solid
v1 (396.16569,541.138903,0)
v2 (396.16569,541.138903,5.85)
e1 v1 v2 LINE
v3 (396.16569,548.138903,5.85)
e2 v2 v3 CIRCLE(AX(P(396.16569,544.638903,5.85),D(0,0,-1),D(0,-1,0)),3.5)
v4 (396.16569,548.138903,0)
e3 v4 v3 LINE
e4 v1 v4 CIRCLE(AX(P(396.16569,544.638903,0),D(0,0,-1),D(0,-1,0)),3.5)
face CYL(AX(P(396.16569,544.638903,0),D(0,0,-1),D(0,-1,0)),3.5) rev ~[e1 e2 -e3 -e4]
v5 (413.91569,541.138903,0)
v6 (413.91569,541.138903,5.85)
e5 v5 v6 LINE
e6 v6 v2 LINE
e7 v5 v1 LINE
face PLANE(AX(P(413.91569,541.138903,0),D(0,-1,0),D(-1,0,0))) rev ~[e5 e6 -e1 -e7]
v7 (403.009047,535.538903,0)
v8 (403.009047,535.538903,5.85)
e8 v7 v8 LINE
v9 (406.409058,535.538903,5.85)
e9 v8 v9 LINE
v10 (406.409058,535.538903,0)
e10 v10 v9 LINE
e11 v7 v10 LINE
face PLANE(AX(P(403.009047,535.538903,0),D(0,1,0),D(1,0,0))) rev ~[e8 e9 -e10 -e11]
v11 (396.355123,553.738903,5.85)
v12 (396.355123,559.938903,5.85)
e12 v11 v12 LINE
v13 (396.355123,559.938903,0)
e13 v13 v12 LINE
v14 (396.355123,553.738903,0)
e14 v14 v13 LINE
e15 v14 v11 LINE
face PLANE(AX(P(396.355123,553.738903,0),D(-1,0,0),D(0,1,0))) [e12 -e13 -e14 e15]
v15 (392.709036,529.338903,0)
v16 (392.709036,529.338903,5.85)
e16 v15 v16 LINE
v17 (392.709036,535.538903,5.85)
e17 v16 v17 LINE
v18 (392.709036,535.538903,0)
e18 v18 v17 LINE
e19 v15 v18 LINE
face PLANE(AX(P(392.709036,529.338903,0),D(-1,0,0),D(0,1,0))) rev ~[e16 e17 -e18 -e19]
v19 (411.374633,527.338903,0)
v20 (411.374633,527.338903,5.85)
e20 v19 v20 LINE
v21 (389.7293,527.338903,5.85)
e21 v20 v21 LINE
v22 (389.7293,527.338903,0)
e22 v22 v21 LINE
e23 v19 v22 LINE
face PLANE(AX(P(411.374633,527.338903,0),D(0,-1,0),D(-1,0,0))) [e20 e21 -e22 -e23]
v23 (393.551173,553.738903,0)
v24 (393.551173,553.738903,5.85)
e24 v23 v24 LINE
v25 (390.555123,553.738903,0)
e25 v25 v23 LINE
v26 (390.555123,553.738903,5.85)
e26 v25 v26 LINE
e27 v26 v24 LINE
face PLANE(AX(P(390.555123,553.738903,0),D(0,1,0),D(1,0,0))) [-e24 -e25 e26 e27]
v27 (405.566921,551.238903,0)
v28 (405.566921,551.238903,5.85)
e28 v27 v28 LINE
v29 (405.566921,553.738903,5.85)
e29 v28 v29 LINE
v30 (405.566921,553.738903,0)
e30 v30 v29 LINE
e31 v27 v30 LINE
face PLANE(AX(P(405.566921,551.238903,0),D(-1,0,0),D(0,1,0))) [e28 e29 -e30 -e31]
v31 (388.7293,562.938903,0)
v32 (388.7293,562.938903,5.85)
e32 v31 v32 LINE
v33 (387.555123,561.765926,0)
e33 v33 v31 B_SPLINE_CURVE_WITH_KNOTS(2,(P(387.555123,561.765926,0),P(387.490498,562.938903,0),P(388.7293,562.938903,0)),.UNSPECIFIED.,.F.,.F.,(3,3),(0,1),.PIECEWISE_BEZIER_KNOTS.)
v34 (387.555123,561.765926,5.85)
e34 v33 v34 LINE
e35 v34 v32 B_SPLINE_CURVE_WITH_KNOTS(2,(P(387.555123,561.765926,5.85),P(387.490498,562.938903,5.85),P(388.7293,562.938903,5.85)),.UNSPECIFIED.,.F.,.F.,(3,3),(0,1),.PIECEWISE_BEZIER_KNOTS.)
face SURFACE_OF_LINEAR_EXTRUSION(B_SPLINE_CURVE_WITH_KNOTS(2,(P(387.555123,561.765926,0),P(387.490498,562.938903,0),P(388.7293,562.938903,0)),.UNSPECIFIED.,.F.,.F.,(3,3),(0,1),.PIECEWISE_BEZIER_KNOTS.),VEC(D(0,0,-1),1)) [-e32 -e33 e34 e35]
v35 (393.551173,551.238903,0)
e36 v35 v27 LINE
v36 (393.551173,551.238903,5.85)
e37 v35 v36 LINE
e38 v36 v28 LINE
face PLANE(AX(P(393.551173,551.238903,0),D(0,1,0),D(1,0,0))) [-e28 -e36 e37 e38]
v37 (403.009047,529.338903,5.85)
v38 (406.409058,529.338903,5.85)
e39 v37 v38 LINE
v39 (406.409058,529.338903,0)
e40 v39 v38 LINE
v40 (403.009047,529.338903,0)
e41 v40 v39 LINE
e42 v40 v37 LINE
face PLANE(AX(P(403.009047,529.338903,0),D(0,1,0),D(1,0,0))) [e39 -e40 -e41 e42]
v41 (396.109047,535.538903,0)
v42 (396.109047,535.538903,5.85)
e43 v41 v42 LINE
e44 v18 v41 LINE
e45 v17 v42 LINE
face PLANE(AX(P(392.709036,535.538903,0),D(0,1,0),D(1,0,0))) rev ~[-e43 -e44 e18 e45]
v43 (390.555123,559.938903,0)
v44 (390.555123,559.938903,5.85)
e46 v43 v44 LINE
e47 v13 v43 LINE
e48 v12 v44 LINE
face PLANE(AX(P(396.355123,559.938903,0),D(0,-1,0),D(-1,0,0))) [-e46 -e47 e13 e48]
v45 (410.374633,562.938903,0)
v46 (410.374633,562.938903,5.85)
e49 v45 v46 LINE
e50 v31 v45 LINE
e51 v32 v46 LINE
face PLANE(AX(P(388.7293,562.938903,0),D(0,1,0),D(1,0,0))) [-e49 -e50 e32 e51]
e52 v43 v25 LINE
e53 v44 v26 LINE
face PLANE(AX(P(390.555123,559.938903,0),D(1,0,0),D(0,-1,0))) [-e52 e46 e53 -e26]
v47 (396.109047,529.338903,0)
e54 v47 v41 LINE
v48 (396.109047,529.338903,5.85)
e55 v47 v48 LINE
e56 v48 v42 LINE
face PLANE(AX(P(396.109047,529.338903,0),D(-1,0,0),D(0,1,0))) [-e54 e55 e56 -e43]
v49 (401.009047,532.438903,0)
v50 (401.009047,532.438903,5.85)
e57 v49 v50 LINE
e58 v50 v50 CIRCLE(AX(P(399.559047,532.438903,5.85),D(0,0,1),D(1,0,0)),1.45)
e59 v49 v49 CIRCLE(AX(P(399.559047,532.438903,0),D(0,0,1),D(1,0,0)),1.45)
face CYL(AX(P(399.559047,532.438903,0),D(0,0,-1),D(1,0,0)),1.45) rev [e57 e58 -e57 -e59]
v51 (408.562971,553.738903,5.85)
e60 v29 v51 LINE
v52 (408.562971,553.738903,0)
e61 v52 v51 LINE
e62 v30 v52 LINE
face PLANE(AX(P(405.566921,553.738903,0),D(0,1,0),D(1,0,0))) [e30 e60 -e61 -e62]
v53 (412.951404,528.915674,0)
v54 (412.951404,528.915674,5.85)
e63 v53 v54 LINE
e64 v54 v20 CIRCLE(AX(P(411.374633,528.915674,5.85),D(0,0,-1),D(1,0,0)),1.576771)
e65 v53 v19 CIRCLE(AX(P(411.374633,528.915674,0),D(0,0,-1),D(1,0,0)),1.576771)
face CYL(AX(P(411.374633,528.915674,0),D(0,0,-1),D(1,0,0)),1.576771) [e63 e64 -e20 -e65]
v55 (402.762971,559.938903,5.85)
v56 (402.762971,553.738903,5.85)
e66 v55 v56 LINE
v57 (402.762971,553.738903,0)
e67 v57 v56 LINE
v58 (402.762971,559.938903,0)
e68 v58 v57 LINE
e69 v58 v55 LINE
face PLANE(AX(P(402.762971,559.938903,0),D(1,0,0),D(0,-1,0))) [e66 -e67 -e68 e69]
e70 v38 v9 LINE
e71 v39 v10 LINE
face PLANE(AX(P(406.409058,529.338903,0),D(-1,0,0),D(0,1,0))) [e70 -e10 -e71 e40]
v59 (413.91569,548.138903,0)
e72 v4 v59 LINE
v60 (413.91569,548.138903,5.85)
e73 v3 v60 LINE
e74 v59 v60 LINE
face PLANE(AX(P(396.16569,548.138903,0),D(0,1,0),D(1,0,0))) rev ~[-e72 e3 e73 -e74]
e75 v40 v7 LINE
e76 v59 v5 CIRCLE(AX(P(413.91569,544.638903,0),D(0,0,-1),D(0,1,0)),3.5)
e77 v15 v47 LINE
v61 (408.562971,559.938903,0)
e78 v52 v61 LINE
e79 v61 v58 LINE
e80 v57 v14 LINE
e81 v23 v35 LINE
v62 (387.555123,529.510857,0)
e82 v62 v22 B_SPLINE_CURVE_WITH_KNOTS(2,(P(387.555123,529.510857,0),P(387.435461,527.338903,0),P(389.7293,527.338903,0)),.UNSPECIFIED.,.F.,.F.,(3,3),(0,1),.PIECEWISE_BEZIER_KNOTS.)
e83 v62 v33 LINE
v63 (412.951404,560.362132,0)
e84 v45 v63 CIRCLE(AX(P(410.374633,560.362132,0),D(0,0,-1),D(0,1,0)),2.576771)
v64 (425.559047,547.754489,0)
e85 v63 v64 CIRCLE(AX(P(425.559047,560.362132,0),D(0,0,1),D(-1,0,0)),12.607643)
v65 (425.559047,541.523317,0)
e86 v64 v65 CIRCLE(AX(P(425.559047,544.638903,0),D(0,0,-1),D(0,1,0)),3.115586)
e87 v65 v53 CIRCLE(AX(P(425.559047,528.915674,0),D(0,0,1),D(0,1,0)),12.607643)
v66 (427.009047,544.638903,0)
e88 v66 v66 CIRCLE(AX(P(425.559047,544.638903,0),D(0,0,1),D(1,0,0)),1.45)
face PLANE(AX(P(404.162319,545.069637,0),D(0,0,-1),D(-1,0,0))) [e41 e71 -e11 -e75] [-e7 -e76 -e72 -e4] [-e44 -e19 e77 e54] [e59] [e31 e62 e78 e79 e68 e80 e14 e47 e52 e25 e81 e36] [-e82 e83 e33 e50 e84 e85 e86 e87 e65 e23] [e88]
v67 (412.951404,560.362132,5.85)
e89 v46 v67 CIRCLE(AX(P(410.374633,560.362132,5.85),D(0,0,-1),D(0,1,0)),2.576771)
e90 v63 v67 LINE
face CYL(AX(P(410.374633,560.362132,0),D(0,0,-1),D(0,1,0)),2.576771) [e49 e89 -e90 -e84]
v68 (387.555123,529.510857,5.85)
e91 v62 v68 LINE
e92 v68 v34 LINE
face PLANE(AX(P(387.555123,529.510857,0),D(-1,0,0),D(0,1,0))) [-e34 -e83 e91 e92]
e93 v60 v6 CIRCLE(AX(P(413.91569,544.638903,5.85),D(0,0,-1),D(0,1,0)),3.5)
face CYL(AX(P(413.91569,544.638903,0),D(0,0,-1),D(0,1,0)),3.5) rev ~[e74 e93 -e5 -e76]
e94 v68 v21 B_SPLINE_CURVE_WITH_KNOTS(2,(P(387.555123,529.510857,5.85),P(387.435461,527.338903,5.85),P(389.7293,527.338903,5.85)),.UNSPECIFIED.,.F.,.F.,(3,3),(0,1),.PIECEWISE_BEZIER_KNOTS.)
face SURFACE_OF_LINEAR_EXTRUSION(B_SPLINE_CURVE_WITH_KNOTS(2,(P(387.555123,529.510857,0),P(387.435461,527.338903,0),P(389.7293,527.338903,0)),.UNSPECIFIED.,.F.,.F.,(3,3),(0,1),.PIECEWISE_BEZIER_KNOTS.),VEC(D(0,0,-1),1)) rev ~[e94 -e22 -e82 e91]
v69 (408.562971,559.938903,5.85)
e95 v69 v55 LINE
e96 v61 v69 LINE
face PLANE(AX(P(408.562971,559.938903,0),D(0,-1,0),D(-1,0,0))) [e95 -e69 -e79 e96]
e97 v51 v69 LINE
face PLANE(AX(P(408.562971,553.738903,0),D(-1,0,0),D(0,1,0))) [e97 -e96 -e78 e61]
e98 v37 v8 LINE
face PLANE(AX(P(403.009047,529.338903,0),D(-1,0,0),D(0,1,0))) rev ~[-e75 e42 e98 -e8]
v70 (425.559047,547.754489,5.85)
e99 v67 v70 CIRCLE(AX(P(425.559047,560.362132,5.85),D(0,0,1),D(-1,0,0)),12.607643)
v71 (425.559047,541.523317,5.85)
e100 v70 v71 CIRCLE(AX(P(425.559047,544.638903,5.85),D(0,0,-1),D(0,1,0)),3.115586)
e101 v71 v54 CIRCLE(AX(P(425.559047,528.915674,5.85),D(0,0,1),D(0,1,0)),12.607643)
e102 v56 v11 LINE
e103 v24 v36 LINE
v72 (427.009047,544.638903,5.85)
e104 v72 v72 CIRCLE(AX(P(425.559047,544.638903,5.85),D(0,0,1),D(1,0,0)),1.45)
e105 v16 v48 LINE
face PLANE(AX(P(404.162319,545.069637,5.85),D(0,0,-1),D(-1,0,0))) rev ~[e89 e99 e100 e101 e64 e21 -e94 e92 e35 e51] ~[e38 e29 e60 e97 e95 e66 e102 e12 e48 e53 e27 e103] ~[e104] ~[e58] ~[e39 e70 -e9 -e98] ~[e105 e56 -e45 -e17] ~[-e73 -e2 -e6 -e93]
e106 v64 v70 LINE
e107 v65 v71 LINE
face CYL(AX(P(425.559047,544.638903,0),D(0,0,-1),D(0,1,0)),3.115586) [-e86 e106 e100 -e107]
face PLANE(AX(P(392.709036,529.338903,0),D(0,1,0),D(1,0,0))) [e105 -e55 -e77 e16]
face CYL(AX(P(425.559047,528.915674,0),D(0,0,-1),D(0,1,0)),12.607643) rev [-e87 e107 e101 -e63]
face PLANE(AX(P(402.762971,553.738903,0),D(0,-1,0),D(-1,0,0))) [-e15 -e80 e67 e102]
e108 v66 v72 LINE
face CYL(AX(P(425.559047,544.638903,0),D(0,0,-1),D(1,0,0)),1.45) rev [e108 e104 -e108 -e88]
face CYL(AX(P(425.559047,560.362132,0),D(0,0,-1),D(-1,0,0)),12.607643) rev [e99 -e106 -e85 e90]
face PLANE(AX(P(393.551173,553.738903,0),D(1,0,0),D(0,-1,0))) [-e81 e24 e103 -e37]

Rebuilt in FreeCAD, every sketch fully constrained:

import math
import FreeCAD as App
import Part
import Sketcher

V = App.Vector


def add_polygon(sketch, points):
    """Adds a closed chain of lines whose ends are joined by coincident constraints."""
    first, n = sketch.GeometryCount, len(points)
    for a, b in zip(points, points[1:] + points[:1]):
        sketch.addGeometry(Part.LineSegment(App.Vector(*a, 0), App.Vector(*b, 0)), False)
    for i in range(n):
        sketch.addConstraint(Sketcher.Constraint("Coincident", first + i, 2, first + (i + 1) % n, 1))

doc = App.newDocument("Part")
body = doc.addObject("PartDesign::Body", "Body")

# Sketch on XY plane
sketch1 = doc.addObject("Sketcher::SketchObject", "Sketch")
body.addObject(sketch1)
sketch1.AttachmentSupport = (doc.XY_Plane, [""])
sketch1.MapMode = "FlatFace"
sketch1.addGeometry(Part.LineSegment(V(410.374633, 562.938903, 0), V(388.7293, 562.938903, 0)), False)  # 0
sketch1.addGeometry(Part.BSplineCurve([V(387.555123, 561.765926, 0), V(387.490498, 562.938903, 0), V(388.7293, 562.938903, 0)], [3, 3], [0, 1], False, 2, [1, 1, 1], False), False)  # 1
sketch1.addGeometry(Part.LineSegment(V(387.555123, 561.765926, 0), V(387.555123, 529.510857, 0)), False)  # 2
sketch1.addGeometry(Part.BSplineCurve([V(387.555123, 529.510857, 0), V(387.435461, 527.338903, 0), V(389.7293, 527.338903, 0)], [3, 3], [0, 1], False, 2, [1, 1, 1], False), False)  # 3
sketch1.addGeometry(Part.LineSegment(V(389.7293, 527.338903, 0), V(411.374633, 527.338903, 0)), False)  # 4
sketch1.addGeometry(Part.ArcOfCircle(Part.Circle(V(411.374633, 528.915674, 0), V(0, 0, 1), 1.576771), math.radians(-90), math.radians(0)), False)  # 5
sketch1.addGeometry(Part.ArcOfCircle(Part.Circle(V(425.559047, 528.915674, 0), V(0, 0, 1), 12.607643), math.radians(90), math.radians(180)), False)  # 6
sketch1.addGeometry(Part.ArcOfCircle(Part.Circle(V(425.559047, 544.638903, 0), V(0, 0, 1), 3.115586), math.radians(-90), math.radians(90)), False)  # 7
sketch1.addGeometry(Part.ArcOfCircle(Part.Circle(V(425.559047, 560.362132, 0), V(0, 0, 1), 12.607643), math.radians(-180), math.radians(-90)), False)  # 8
sketch1.addGeometry(Part.ArcOfCircle(Part.Circle(V(410.374633, 560.362132, 0), V(0, 0, 1), 2.576771), math.radians(0), math.radians(90)), False)  # 9
add_polygon(sketch1, [(403.009047, 529.338903), (403.009047, 535.538903), (406.409058, 535.538903), (406.409058, 529.338903)])  # lines 10-13
sketch1.addGeometry(Part.Circle(V(399.559047, 532.438903, 0), V(0, 0, 1), 1.45), False)  # 14
add_polygon(sketch1, [(392.709036, 529.338903), (392.709036, 535.538903), (396.109047, 535.538903), (396.109047, 529.338903)])  # lines 15-18
sketch1.addGeometry(Part.Circle(V(425.559047, 544.638903, 0), V(0, 0, 1), 1.45), False)  # 19
sketch1.addGeometry(Part.LineSegment(V(396.16569, 548.138903, 0), V(413.91569, 548.138903, 0)), False)  # 20
sketch1.addGeometry(Part.ArcOfCircle(Part.Circle(V(413.91569, 544.638903, 0), V(0, 0, 1), 3.5), math.radians(-90), math.radians(90)), False)  # 21
sketch1.addGeometry(Part.LineSegment(V(413.91569, 541.138903, 0), V(396.16569, 541.138903, 0)), False)  # 22
sketch1.addGeometry(Part.ArcOfCircle(Part.Circle(V(396.16569, 544.638903, 0), V(0, 0, 1), 3.5), math.radians(90), math.radians(270)), False)  # 23
add_polygon(sketch1, [(405.566921, 551.238903), (393.551173, 551.238903), (393.551173, 553.738903), (390.555123, 553.738903), (390.555123, 559.938903), (396.355123, 559.938903), (396.355123, 553.738903), (402.762971, 553.738903), (402.762971, 559.938903), (408.562971, 559.938903), (408.562971, 553.738903), (405.566921, 553.738903)])  # lines 24-35
sketch1.addConstraint(Sketcher.Constraint("Block", 1))
sketch1.addConstraint(Sketcher.Constraint("Block", 3))
sketch1.addConstraint(Sketcher.Constraint("Coincident", 0, 2, 1, 2))
sketch1.addConstraint(Sketcher.Constraint("Coincident", 1, 1, 2, 1))
sketch1.addConstraint(Sketcher.Constraint("Coincident", 2, 2, 3, 1))
sketch1.addConstraint(Sketcher.Constraint("Coincident", 3, 2, 4, 1))
sketch1.addConstraint(Sketcher.Constraint("Tangent", 4, 2, 5, 1))
sketch1.addConstraint(Sketcher.Constraint("Tangent", 5, 2, 6, 2))
sketch1.addConstraint(Sketcher.Constraint("Tangent", 6, 1, 7, 1))
sketch1.addConstraint(Sketcher.Constraint("Tangent", 7, 2, 8, 2))
sketch1.addConstraint(Sketcher.Constraint("Tangent", 8, 1, 9, 1))
sketch1.addConstraint(Sketcher.Constraint("Tangent", 9, 2, 0, 1))
sketch1.addConstraint(Sketcher.Constraint("Tangent", 20, 2, 21, 2))
sketch1.addConstraint(Sketcher.Constraint("Tangent", 21, 1, 22, 1))
sketch1.addConstraint(Sketcher.Constraint("Tangent", 22, 2, 23, 2))
sketch1.addConstraint(Sketcher.Constraint("Tangent", 23, 1, 20, 1))
sketch1.addConstraint(Sketcher.Constraint("Horizontal", 0))
sketch1.addConstraint(Sketcher.Constraint("Horizontal", 4))
sketch1.addConstraint(Sketcher.Constraint("Vertical", 10))
sketch1.addConstraint(Sketcher.Constraint("Horizontal", 11))
sketch1.addConstraint(Sketcher.Constraint("Vertical", 12))
sketch1.addConstraint(Sketcher.Constraint("Horizontal", 13))
sketch1.addConstraint(Sketcher.Constraint("Vertical", 15))
sketch1.addConstraint(Sketcher.Constraint("Horizontal", 16))
sketch1.addConstraint(Sketcher.Constraint("Vertical", 17))
sketch1.addConstraint(Sketcher.Constraint("Horizontal", 18))
sketch1.addConstraint(Sketcher.Constraint("Horizontal", 20))
sketch1.addConstraint(Sketcher.Constraint("Horizontal", 22))
sketch1.addConstraint(Sketcher.Constraint("Horizontal", 24))
sketch1.addConstraint(Sketcher.Constraint("Vertical", 25))
sketch1.addConstraint(Sketcher.Constraint("Horizontal", 26))
sketch1.addConstraint(Sketcher.Constraint("Vertical", 27))
sketch1.addConstraint(Sketcher.Constraint("Horizontal", 28))
sketch1.addConstraint(Sketcher.Constraint("Vertical", 29))
sketch1.addConstraint(Sketcher.Constraint("Horizontal", 30))
sketch1.addConstraint(Sketcher.Constraint("Vertical", 31))
sketch1.addConstraint(Sketcher.Constraint("Horizontal", 32))
sketch1.addConstraint(Sketcher.Constraint("Vertical", 33))
sketch1.addConstraint(Sketcher.Constraint("Horizontal", 34))
sketch1.addConstraint(Sketcher.Constraint("Vertical", 35))
sketch1.addConstraint(Sketcher.Constraint("Coincident", 19, 3, 7, 3))
sketch1.addConstraint(Sketcher.Constraint("Equal", 6, 8))
sketch1.addConstraint(Sketcher.Constraint("Equal", 14, 19))
sketch1.addConstraint(Sketcher.Constraint("Horizontal", 5, 3, 6, 3))
sketch1.addConstraint(Sketcher.Constraint("Horizontal", 8, 3, 9, 3))
sketch1.addConstraint(Sketcher.Constraint("Horizontal", 19, 3, 21, 3))
sketch1.addConstraint(Sketcher.Constraint("Horizontal", 11, 2, 15, 2))
sketch1.addConstraint(Sketcher.Constraint("Horizontal", 13, 2, 17, 2))
sketch1.addConstraint(Sketcher.Constraint("Horizontal", 26, 2, 29, 2))
sketch1.addConstraint(Sketcher.Constraint("Horizontal", 28, 2, 31, 2))
sketch1.addConstraint(Sketcher.Constraint("Horizontal", 30, 2, 33, 2))
sketch1.addConstraint(Sketcher.Constraint("Vertical", 6, 3, 7, 3))
sketch1.addConstraint(Sketcher.Constraint("Vertical", 7, 3, 8, 3))
sketch1.addConstraint(Sketcher.Constraint("Equal", 0, 4))
sketch1.addConstraint(Sketcher.Constraint("Equal", 13, 16))
sketch1.addConstraint(Sketcher.Constraint("Equal", 28, 32))
sketch1.addConstraint(Sketcher.Constraint("Equal", 26, 34))
sketch1.addConstraint(Sketcher.Constraint("Equal", 17, 27))
sketch1.addConstraint(Sketcher.Constraint("Diameter", 14, 2.9))
sketch1.addConstraint(Sketcher.Constraint("Radius", 21, 3.5))
sketch1.addConstraint(Sketcher.Constraint("DistanceX", 28, 1, 28, 2, 5.8))
sketch1.addConstraint(Sketcher.Constraint("DistanceY", 10, 1, 10, 2, 6.2))
sketch1.addConstraint(Sketcher.Constraint("DistanceY", 25, 1, 25, 2, 2.5))
sketch1.addConstraint(Sketcher.Constraint("DistanceX", 14, 3, 6, 3, 26.0))
sketch1.addConstraint(Sketcher.Constraint("DistanceY", 4, 2, 12, 2, 2.0))
sketch1.addConstraint(Sketcher.Constraint("DistanceY", 27, 2, 0, 2, 3.0))
sketch1.addConstraint(Sketcher.Constraint("DistanceX", 20, 1, 20, 2, 17.75))
sketch1.addConstraint(Sketcher.Constraint("DistanceY", 14, 3, 7, 3, 12.2))
sketch1.addConstraint(Sketcher.Constraint("DistanceX", 16, 2, 10, 2, 6.9))
sketch1.addConstraint(Sketcher.Constraint("Radius", 5, 1.576771))
sketch1.addConstraint(Sketcher.Constraint("DistanceX", 14, 3, 10, 2, 3.45))
sketch1.addConstraint(Sketcher.Constraint("Radius", 6, 12.607643))
sketch1.addConstraint(Sketcher.Constraint("DistanceX", 11, 1, 11, 2, 3.400011))
sketch1.addConstraint(Sketcher.Constraint("DistanceX", 24, 2, 24, 1, 12.015748))
sketch1.addConstraint(Sketcher.Constraint("DistanceX", 26, 2, 26, 1, 2.99605))
sketch1.addConstraint(Sketcher.Constraint("DistanceX", 0, 2, 0, 1, 21.645333))
sketch1.addConstraint(Sketcher.Constraint("DistanceX", -1, 1, 21, 3, 413.91569))
sketch1.addConstraint(Sketcher.Constraint("DistanceX", -1, 1, 30, 2, 402.762971))
pad1 = doc.addObject("PartDesign::Pad", "Pad")
body.addObject(pad1)
pad1.Profile = sketch1
pad1.Length = 5.85

doc.recompute()
